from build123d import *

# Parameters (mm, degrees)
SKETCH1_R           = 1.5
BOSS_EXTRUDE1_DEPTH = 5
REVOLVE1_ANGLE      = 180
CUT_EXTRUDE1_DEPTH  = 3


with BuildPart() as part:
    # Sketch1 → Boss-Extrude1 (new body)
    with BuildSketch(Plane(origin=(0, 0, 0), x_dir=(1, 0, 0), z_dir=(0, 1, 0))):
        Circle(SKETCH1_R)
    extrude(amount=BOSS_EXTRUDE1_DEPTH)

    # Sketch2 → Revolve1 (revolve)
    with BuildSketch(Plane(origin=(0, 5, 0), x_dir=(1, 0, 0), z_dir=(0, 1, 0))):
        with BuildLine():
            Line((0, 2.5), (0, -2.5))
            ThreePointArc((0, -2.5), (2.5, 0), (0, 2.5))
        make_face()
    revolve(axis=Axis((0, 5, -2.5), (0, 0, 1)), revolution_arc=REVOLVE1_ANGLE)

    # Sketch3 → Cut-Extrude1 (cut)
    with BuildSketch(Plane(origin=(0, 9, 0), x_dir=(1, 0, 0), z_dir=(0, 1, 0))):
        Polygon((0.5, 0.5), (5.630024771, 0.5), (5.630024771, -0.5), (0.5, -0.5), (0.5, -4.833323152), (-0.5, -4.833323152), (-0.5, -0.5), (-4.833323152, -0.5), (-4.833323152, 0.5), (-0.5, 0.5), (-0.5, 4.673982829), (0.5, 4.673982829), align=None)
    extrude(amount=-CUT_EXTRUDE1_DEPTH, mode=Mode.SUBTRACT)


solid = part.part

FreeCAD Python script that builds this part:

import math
import FreeCAD as App
import Part
import Sketcher
from FreeCAD import Vector
Q = App.Units.Quantity

doc = App.newDocument("Part")
body = doc.addObject("PartDesign::Body", "Body")

sketch1 = body.newObject("Sketcher::SketchObject", "Sketch")
sketch1.AttachmentSupport = (doc.getObject("XZ_Plane"), [""])
sketch1.MapMode = "FlatFace"
sketch1.addGeometry(Part.Circle(Vector(0, 0, 0), Vector(0, 0, 1), 1.5), False)
sketch1.addConstraint([
    Sketcher.Constraint("Coincident", 0, 3, -1, 1),
    Sketcher.Constraint("Diameter", 0, Q("3 mm")),
])
pad1 = body.newObject("PartDesign::Pad", "Pad")
pad1.Profile = sketch1
pad1.Length = 5
pad1.Reversed = True

sketch2 = body.newObject("Sketcher::SketchObject", "Sketch001")
sketch2.AttachmentSupport = (doc.getObject("XZ_Plane"), [""])
sketch2.MapMode = "FlatFace"
sketch2.AttachmentOffset = App.Placement(Vector(0, 0, -5), App.Rotation())
sketch2.addGeometry([
    Part.LineSegment(Vector(0, -2.5, 0), Vector(0, 2.5, 0)),
    Part.ArcOfCircle(Part.Circle(Vector(0, 0, 0), Vector(0, 0, 1), 2.5), math.radians(-90), math.radians(90)),
], False)
sketch2.addConstraint([
    Sketcher.Constraint("Coincident", 0, 1, 1, 1),
    Sketcher.Constraint("Coincident", 1, 2, 0, 2),
    Sketcher.Constraint("Vertical", 0),
    Sketcher.Constraint("Coincident", 1, 3, -1, 1),
    Sketcher.Constraint("PointOnObject", 0, 1, -2),
    Sketcher.Constraint("Radius", 1, Q("2.5 mm")),
])
revolution = body.newObject("PartDesign::Revolution", "Revolution")
revolution.Profile = sketch2
revolution.ReferenceAxis = (sketch2, ["V_Axis"])
revolution.Angle = 180

sketch3 = body.newObject("Sketcher::SketchObject", "Sketch002")
sketch3.AttachmentSupport = (doc.getObject("XZ_Plane"), [""])
sketch3.MapMode = "FlatFace"
sketch3.AttachmentOffset = App.Placement(Vector(0, 0, -9), App.Rotation())
sketch3.addGeometry([
    Part.LineSegment(Vector(5.630025, -0.5, 0), Vector(0.5, -0.5, 0)),
    Part.LineSegment(Vector(0.5, -0.5, 0), Vector(0.5, -4.673983, 0)),
    Part.LineSegment(Vector(0.5, -4.673983, 0), Vector(-0.5, -4.673983, 0)),
    Part.LineSegment(Vector(-0.5, -4.673983, 0), Vector(-0.5, -0.5, 0)),
    Part.LineSegment(Vector(-0.5, -0.5, 0), Vector(-4.833323, -0.5, 0)),
    Part.LineSegment(Vector(-4.833323, -0.5, 0), Vector(-4.833323, 0.5, 0)),
    Part.LineSegment(Vector(-4.833323, 0.5, 0), Vector(-0.5, 0.5, 0)),
    Part.LineSegment(Vector(-0.5, 0.5, 0), Vector(-0.5, 4.833323, 0)),
    Part.LineSegment(Vector(-0.5, 4.833323, 0), Vector(0.5, 4.833323, 0)),
    Part.LineSegment(Vector(0.5, 4.833323, 0), Vector(0.5, 0.5, 0)),
    Part.LineSegment(Vector(0.5, 0.5, 0), Vector(5.630025, 0.5, 0)),
    Part.LineSegment(Vector(5.630025, 0.5, 0), Vector(5.630025, -0.5, 0)),
], False)
sketch3.addConstraint([
    Sketcher.Constraint("Coincident", 0, 2, 1, 1),
    Sketcher.Constraint("Coincident", 1, 2, 2, 1),
    Sketcher.Constraint("Coincident", 2, 2, 3, 1),
    Sketcher.Constraint("Coincident", 3, 2, 4, 1),
    Sketcher.Constraint("Coincident", 4, 2, 5, 1),
    Sketcher.Constraint("Coincident", 5, 2, 6, 1),
    Sketcher.Constraint("Coincident", 6, 2, 7, 1),
    Sketcher.Constraint("Coincident", 7, 2, 8, 1),
    Sketcher.Constraint("Coincident", 8, 2, 9, 1),
    Sketcher.Constraint("Coincident", 9, 2, 10, 1),
    Sketcher.Constraint("Coincident", 10, 2, 11, 1),
    Sketcher.Constraint("Coincident", 11, 2, 0, 1),
    Sketcher.Constraint("Horizontal", 0),
    Sketcher.Constraint("Vertical", 1),
    Sketcher.Constraint("Horizontal", 2),
    Sketcher.Constraint("Vertical", 3),
    Sketcher.Constraint("Horizontal", 4),
    Sketcher.Constraint("Vertical", 5),
    Sketcher.Constraint("Horizontal", 6),
    Sketcher.Constraint("Vertical", 7),
    Sketcher.Constraint("Horizontal", 8),
    Sketcher.Constraint("Vertical", 9),
    Sketcher.Constraint("Horizontal", 10),
    Sketcher.Constraint("Vertical", 11),
    Sketcher.Constraint("Symmetric", 0, 2, 6, 2, -1, 1),
    Sketcher.Constraint("Symmetric", 3, 2, 9, 2, -1, 1),
    Sketcher.Constraint("Symmetric", 0, 2, 3, 2, -2),
    Sketcher.Constraint("Equal", 8, 5),
    Sketcher.Constraint("Equal", 6, 7),
    Sketcher.Constraint("DistanceX", 2, 2, 2, 1, Q("1 mm")),
    Sketcher.Constraint("DistanceX", 0, 2, 0, 1, Q("5.130025 mm")),
    Sketcher.Constraint("DistanceX", 4, 2, 4, 1, Q("4.333323 mm")),
    Sketcher.Constraint("DistanceY", 1, 2, 1, 1, Q("4.173983 mm")),
])
pocket1 = body.newObject("PartDesign::Pocket", "Pocket")
pocket1.Profile = sketch3
pocket1.Length = 3
pocket1.Reversed = True

doc.recompute()
